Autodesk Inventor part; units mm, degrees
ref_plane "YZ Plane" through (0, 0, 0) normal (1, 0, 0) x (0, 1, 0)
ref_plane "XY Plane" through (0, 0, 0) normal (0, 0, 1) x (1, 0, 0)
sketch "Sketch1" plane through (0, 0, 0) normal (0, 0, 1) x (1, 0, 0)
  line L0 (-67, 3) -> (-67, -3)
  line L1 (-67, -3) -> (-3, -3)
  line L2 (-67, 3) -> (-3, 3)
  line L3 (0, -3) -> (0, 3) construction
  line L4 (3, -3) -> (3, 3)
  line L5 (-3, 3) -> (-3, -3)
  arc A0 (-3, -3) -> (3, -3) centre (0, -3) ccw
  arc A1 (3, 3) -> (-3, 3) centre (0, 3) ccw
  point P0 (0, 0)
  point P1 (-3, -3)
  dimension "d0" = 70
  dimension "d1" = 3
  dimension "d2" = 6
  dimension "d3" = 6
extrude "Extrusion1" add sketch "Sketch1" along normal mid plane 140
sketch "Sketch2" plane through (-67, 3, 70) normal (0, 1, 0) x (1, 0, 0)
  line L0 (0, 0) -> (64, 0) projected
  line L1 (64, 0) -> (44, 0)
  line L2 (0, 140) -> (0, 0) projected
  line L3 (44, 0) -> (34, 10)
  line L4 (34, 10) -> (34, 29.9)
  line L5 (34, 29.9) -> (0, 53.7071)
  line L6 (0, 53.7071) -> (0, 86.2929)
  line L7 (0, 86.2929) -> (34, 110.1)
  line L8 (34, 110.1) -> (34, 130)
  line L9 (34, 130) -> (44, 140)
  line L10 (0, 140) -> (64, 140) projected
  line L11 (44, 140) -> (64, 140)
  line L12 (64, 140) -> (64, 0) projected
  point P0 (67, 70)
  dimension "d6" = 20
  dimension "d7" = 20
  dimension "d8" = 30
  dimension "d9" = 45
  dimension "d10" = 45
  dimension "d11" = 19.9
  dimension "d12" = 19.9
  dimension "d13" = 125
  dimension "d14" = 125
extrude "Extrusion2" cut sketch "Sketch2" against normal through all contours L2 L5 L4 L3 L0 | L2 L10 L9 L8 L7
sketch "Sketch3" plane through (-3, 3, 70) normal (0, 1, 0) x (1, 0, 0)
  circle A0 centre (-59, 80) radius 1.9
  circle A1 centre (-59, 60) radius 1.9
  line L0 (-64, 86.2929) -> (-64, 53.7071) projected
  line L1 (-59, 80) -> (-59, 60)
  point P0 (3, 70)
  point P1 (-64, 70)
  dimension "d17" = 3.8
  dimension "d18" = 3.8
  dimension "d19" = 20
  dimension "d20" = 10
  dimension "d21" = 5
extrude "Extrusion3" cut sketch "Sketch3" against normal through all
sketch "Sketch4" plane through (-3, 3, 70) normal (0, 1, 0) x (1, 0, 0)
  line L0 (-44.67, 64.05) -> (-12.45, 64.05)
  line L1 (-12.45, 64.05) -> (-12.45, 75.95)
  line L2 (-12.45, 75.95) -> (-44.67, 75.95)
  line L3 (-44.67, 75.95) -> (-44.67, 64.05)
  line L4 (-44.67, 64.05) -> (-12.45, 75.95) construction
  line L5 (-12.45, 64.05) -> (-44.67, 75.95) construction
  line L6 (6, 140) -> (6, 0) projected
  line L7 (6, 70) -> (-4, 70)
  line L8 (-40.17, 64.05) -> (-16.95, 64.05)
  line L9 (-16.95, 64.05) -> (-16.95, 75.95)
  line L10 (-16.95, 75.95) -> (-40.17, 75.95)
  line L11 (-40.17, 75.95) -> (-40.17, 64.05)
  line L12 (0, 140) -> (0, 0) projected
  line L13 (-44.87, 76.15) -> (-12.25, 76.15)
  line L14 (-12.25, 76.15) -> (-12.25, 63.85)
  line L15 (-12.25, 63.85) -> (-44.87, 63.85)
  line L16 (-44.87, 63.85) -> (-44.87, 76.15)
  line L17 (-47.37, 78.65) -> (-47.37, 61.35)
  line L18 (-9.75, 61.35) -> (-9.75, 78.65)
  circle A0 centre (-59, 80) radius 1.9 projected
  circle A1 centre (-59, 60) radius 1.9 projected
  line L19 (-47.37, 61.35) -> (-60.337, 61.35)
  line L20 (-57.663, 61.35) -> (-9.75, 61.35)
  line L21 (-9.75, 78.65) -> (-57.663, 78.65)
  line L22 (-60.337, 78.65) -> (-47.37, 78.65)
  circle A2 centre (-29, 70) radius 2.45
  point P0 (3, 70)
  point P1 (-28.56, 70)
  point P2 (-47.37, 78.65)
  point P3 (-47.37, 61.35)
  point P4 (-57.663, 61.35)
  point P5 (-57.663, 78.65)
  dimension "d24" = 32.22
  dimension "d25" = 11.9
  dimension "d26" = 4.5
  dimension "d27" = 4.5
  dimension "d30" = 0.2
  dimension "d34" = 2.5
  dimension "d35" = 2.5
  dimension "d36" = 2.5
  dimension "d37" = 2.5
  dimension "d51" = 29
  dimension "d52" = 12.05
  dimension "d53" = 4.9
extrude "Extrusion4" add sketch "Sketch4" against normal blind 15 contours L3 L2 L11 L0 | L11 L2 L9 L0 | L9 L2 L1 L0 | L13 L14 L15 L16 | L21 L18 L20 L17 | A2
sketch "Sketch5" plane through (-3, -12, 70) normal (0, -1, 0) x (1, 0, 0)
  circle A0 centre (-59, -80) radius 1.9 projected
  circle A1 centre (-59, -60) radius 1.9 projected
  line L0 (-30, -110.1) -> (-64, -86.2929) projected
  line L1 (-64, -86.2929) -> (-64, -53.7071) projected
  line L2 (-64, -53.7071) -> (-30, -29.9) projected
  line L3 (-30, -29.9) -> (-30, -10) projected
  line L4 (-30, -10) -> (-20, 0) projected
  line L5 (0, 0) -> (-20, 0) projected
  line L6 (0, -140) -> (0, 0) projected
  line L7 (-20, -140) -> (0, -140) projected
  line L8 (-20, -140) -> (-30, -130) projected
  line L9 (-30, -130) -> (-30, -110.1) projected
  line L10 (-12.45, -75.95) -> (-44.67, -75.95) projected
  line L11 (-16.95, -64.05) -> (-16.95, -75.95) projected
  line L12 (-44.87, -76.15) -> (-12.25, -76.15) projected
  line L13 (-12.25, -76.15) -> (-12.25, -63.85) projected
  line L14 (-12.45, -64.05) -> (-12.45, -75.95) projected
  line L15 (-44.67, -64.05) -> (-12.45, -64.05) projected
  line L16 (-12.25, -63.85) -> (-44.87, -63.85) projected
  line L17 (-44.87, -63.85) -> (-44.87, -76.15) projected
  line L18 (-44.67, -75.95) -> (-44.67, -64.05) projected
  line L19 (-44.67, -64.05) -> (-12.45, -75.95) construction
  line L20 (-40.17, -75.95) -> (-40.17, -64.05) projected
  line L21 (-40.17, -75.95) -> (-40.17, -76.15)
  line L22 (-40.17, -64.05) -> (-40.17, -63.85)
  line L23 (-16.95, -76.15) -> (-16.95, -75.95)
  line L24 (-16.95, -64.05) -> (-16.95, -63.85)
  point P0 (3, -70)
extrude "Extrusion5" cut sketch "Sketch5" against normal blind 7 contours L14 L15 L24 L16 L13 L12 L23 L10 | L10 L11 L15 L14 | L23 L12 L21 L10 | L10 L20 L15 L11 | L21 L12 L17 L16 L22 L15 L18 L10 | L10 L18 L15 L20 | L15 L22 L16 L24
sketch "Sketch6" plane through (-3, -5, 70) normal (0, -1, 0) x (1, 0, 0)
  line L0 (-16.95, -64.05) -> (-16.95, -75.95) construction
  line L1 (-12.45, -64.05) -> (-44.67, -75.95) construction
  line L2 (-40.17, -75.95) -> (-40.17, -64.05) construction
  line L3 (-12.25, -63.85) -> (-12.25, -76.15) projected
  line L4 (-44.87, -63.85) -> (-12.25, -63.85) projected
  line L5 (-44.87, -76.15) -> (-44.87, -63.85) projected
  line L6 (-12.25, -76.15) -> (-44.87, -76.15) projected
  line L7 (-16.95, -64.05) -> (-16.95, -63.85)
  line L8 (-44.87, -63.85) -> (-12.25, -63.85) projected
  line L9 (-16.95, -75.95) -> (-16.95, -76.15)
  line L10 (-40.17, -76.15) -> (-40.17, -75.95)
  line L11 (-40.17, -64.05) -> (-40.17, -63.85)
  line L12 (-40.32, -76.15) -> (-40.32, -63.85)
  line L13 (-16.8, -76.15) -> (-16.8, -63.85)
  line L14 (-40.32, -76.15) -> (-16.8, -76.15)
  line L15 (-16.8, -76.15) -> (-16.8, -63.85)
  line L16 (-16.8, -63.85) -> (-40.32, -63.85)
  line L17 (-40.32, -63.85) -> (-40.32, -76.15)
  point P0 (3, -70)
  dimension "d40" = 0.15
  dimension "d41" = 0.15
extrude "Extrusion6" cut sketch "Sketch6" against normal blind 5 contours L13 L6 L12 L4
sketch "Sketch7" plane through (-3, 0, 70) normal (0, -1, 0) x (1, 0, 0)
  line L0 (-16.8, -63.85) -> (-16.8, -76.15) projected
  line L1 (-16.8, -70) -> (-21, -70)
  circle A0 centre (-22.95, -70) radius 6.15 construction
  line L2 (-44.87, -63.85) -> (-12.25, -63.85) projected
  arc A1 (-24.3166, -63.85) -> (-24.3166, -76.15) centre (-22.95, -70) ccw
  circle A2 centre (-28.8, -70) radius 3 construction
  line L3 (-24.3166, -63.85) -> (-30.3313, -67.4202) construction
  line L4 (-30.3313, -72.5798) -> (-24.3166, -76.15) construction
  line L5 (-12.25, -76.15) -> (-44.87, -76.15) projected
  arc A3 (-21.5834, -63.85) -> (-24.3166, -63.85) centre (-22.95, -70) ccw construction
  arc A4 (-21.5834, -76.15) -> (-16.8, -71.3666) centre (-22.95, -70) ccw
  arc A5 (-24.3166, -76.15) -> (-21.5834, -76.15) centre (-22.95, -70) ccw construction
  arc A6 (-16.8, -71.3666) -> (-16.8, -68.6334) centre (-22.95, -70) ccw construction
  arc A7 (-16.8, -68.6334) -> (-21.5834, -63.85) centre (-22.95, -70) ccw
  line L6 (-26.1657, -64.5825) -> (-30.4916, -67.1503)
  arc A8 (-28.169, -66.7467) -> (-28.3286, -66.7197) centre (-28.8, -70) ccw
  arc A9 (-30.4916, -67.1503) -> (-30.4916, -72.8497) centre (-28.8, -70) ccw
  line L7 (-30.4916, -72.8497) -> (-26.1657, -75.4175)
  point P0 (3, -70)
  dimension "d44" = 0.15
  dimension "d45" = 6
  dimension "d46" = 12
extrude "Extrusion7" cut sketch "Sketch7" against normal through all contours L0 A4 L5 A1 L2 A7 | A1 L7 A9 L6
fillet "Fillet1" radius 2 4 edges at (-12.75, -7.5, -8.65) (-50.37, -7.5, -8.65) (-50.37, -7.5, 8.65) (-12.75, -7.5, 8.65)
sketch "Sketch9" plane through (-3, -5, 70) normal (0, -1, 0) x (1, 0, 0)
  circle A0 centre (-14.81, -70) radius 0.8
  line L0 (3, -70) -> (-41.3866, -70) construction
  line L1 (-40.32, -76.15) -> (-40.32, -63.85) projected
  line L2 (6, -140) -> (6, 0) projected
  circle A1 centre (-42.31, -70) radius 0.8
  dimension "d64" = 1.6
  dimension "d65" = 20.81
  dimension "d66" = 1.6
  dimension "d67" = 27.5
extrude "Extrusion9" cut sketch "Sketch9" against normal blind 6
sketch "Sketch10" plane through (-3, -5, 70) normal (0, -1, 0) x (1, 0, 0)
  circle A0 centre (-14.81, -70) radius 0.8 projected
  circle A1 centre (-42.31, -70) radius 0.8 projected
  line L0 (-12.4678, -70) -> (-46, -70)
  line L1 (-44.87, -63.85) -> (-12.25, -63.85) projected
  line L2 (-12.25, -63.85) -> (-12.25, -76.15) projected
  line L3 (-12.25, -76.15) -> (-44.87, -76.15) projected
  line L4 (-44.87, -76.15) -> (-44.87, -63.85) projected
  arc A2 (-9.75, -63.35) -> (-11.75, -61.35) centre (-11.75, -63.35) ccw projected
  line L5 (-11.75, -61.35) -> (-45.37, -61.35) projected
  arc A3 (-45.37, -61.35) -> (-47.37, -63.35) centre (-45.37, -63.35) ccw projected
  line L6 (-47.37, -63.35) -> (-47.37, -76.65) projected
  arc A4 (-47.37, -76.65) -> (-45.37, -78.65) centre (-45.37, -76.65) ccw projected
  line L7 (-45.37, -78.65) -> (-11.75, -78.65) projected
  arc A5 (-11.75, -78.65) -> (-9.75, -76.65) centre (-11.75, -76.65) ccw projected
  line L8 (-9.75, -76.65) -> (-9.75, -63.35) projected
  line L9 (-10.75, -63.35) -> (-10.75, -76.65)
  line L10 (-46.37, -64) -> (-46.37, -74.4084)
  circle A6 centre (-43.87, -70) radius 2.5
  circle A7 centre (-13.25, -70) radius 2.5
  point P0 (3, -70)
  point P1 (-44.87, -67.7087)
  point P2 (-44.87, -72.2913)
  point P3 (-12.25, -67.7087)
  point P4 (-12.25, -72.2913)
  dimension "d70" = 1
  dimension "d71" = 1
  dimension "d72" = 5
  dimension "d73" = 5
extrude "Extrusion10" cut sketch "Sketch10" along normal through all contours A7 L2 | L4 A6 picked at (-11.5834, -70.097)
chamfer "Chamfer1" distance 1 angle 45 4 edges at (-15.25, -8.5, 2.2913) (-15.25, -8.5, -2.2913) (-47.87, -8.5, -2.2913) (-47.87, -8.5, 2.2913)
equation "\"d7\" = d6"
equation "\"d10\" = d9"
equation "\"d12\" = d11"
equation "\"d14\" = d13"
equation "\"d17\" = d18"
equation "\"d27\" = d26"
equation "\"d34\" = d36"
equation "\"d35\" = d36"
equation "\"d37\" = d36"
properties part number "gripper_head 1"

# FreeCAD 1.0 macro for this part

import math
import FreeCAD as App
import Part
import Sketcher
Q = App.Units.Quantity


def edges_at(feature, points):
    """Names of the edges that pass closest to the given points."""
    edges = feature.Shape.Edges
    near = lambda p: min(range(len(edges)), key=lambda i: edges[i].distToShape(Part.Vertex(*p))[0])
    return sorted({f"Edge{near(p) + 1}" for p in points})

doc = App.newDocument("Part")
body = doc.addObject("PartDesign::Body", "Body")

# Sketch on XY plane
sketch1 = body.newObject("Sketcher::SketchObject", "Sketch")
sketch1.AttachmentSupport = (doc.getObject("XY_Plane"), [""])
sketch1.MapMode = "FlatFace"
sketch1.addGeometry([
    Part.LineSegment(App.Vector(-3, 3, 0), App.Vector(-67, 3, 0)),  # 0
    Part.LineSegment(App.Vector(-67, 3, 0), App.Vector(-67, -3, 0)),  # 1
    Part.LineSegment(App.Vector(-67, -3, 0), App.Vector(-3, -3, 0)),  # 2
    Part.ArcOfCircle(Part.Circle(App.Vector(0, -3, 0), App.Vector(0, 0, 1), 3), math.radians(180), math.radians(360)),  # 3
    Part.LineSegment(App.Vector(3, -3, 0), App.Vector(3, 3, 0)),  # 4
    Part.ArcOfCircle(Part.Circle(App.Vector(0, 3, 0), App.Vector(0, 0, 1), 3), math.radians(0), math.radians(180)),  # 5
], False)
sketch1.addConstraint([
    Sketcher.Constraint("Coincident", 0, 2, 1, 1),
    Sketcher.Constraint("Coincident", 1, 2, 2, 1),
    Sketcher.Constraint("Coincident", 2, 2, 3, 1),
    Sketcher.Constraint("Tangent", 3, 2, 4, 1),
    Sketcher.Constraint("Tangent", 4, 2, 5, 1),
    Sketcher.Constraint("Coincident", 5, 2, 0, 1),
    Sketcher.Constraint("Horizontal", 0),
    Sketcher.Constraint("Vertical", 1),
    Sketcher.Constraint("Horizontal", 2),
    Sketcher.Constraint("Vertical", 4),
    Sketcher.Constraint("Equal", 3, 5),
    Sketcher.Constraint("Symmetric", 3, 3, 5, 3, -1, 1),
    Sketcher.Constraint("Horizontal", 5, 3, 0, 2),
    Sketcher.Constraint("Horizontal", 3, 3, 1, 2),
    Sketcher.Constraint("Radius", 3, 3.0),
    Sketcher.Constraint("DistanceY", 1, 2, 1, 1, 6.0),
    Sketcher.Constraint("DistanceX", 1, 2, 3, 2, 70.0),
])
pad1 = body.newObject("PartDesign::Pad", "Pad")
pad1.Profile = sketch1
pad1.Length = 140
pad1.Midplane = True

# Sketch on XZ plane
sketch2 = body.newObject("Sketcher::SketchObject", "Sketch001")
sketch2.AttachmentSupport = (doc.getObject("XZ_Plane"), [""])
sketch2.MapMode = "FlatFace"
sketch2.AttachmentOffset = App.Placement(App.Vector(0, 0, -3), App.Rotation())
sketch2.addGeometry([
    Part.LineSegment(App.Vector(-67, 16, 0), App.Vector(-67, 70, 0)),  # 0
    Part.LineSegment(App.Vector(-67, 70, 0), App.Vector(-23, 70, 0)),  # 1
    Part.LineSegment(App.Vector(-23, 70, 0), App.Vector(-33, 60, 0)),  # 2
    Part.LineSegment(App.Vector(-33, 60, 0), App.Vector(-33, 40, 0)),  # 3
    Part.LineSegment(App.Vector(-33, 40, 0), App.Vector(-67, 16, 0)),  # 4
    Part.LineSegment(App.Vector(-67, -70, 0), App.Vector(-67, -16, 0)),  # 5
    Part.LineSegment(App.Vector(-67, -16, 0), App.Vector(-33, -40, 0)),  # 6
    Part.LineSegment(App.Vector(-33, -40, 0), App.Vector(-33, -60, 0)),  # 7
    Part.LineSegment(App.Vector(-33, -60, 0), App.Vector(-23, -70, 0)),  # 8
    Part.LineSegment(App.Vector(-23, -70, 0), App.Vector(-67, -70, 0)),  # 9
], False)
sketch2.addConstraint([
    Sketcher.Constraint("Coincident", 0, 2, 1, 1),
    Sketcher.Constraint("Coincident", 1, 2, 2, 1),
    Sketcher.Constraint("Coincident", 2, 2, 3, 1),
    Sketcher.Constraint("Coincident", 3, 2, 4, 1),
    Sketcher.Constraint("Coincident", 4, 2, 0, 1),
    Sketcher.Constraint("Coincident", 5, 2, 6, 1),
    Sketcher.Constraint("Coincident", 6, 2, 7, 1),
    Sketcher.Constraint("Coincident", 7, 2, 8, 1),
    Sketcher.Constraint("Coincident", 8, 2, 9, 1),
    Sketcher.Constraint("Coincident", 9, 2, 5, 1),
    Sketcher.Constraint("Vertical", 0),
    Sketcher.Constraint("Horizontal", 1),
    Sketcher.Constraint("Vertical", 3),
    Sketcher.Constraint("Vertical", 5),
    Sketcher.Constraint("Vertical", 7),
    Sketcher.Constraint("Horizontal", 9),
    Sketcher.Constraint("Symmetric", 4, 2, 5, 2, -1),
    Sketcher.Constraint("Symmetric", 3, 2, 6, 2, -1),
    Sketcher.Constraint("Symmetric", 1, 2, 8, 2, -1),
    Sketcher.Constraint("Perpendicular", 2, 8),
    Sketcher.Constraint("Equal", 3, 7),
    Sketcher.Constraint("DistanceY", 3, 2, 3, 1, 19.9),
    Sketcher.Constraint("DistanceX", 1, 1, 1, 2, 44.0),
    Sketcher.Constraint("Angle", 4, Q("-145 deg")),
    Sketcher.Constraint("DistanceX", 0, 2, -1, 1, 67.0),
    Sketcher.Constraint("DistanceY", -1, 1, 0, 2, 70.0),
    Sketcher.Constraint("DistanceX", 2, 2, -1, 1, 33.0),
])
pocket1 = body.newObject("PartDesign::Pocket", "Pocket")
pocket1.Profile = sketch2
pocket1.Type = "ThroughAll"
pocket1.Reversed = True

# Sketch on XZ plane
sketch3 = body.newObject("Sketcher::SketchObject", "Sketch002")
sketch3.AttachmentSupport = (doc.getObject("XZ_Plane"), [""])
sketch3.MapMode = "FlatFace"
sketch3.AttachmentOffset = App.Placement(App.Vector(0, 0, -3), App.Rotation())
sketch3.addGeometry([
    Part.Circle(App.Vector(-62, -10, 0), App.Vector(0, 0, 1), 1.9),
    Part.Circle(App.Vector(-62, 10, 0), App.Vector(0, 0, 1), 1.9),
], False)
sketch3.addConstraint([
    Sketcher.Constraint("Equal", 0, 1),
    Sketcher.Constraint("Symmetric", 0, 3, 1, 3, -1),
    Sketcher.Constraint("Diameter", 0, 3.8),
    Sketcher.Constraint("DistanceY", 0, 3, -1, 1, 10.0),
    Sketcher.Constraint("DistanceX", 0, 3, -1, 1, 62.0),
])
pocket2 = body.newObject("PartDesign::Pocket", "Pocket001")
pocket2.Profile = sketch3
pocket2.Type = "ThroughAll"
pocket2.Reversed = True

# Sketch on XZ plane
sketch4 = body.newObject("Sketcher::SketchObject", "Sketch003")
sketch4.AttachmentSupport = (doc.getObject("XZ_Plane"), [""])
sketch4.MapMode = "FlatFace"
sketch4.AttachmentOffset = App.Placement(App.Vector(0, 0, -3), App.Rotation())
sketch4.addGeometry([
    Part.LineSegment(App.Vector(-13, -9, 0), App.Vector(-50, -9, 0)),
    Part.LineSegment(App.Vector(-50, -9, 0), App.Vector(-50, 9, 0)),
    Part.LineSegment(App.Vector(-50, 9, 0), App.Vector(-13, 9, 0)),
    Part.LineSegment(App.Vector(-13, 9, 0), App.Vector(-13, -9, 0)),
], False)
sketch4.addConstraint([
    Sketcher.Constraint("Coincident", 0, 2, 1, 1),
    Sketcher.Constraint("Coincident", 1, 2, 2, 1),
    Sketcher.Constraint("Coincident", 2, 2, 3, 1),
    Sketcher.Constraint("Coincident", 3, 2, 0, 1),
    Sketcher.Constraint("Horizontal", 0),
    Sketcher.Constraint("Vertical", 1),
    Sketcher.Constraint("Horizontal", 2),
    Sketcher.Constraint("Vertical", 3),
    Sketcher.Constraint("DistanceY", 1, 1, 1, 2, 17.3),
    Sketcher.Constraint("DistanceX", 0, 2, 0, 1, 37.62),
    Sketcher.Constraint("DistanceX", 0, 2, -1, 1, 50.37),
    Sketcher.Constraint("DistanceY", 0, 2, -1, 1, 8.65),
])
pad2 = body.newObject("PartDesign::Pad", "Pad001")
pad2.Profile = sketch4
pad2.Length = 15

# Sketch on XZ plane
sketch5 = body.newObject("Sketcher::SketchObject", "Sketch004")
sketch5.AttachmentSupport = (doc.getObject("XZ_Plane"), [""])
sketch5.MapMode = "FlatFace"
sketch5.AttachmentOffset = App.Placement(App.Vector(0, 0, 12), App.Rotation())
sketch5.addGeometry([
    Part.LineSegment(App.Vector(-15, 6, 0), App.Vector(-48, 6, 0)),
    Part.LineSegment(App.Vector(-48, 6, 0), App.Vector(-48, -6, 0)),
    Part.LineSegment(App.Vector(-48, -6, 0), App.Vector(-15, -6, 0)),
    Part.LineSegment(App.Vector(-15, -6, 0), App.Vector(-15, 6, 0)),
], False)
sketch5.addConstraint([
    Sketcher.Constraint("Coincident", 0, 2, 1, 1),
    Sketcher.Constraint("Coincident", 1, 2, 2, 1),
    Sketcher.Constraint("Coincident", 2, 2, 3, 1),
    Sketcher.Constraint("Coincident", 3, 2, 0, 1),
    Sketcher.Constraint("Horizontal", 0),
    Sketcher.Constraint("Vertical", 1),
    Sketcher.Constraint("Horizontal", 2),
    Sketcher.Constraint("Vertical", 3),
    Sketcher.Constraint("DistanceY", 1, 2, 1, 1, 12.3),
    Sketcher.Constraint("DistanceX", 0, 2, 0, 1, 32.62),
    Sketcher.Constraint("DistanceX", 0, 2, -1, 1, 47.87),
    Sketcher.Constraint("DistanceY", -1, 1, 0, 2, 6.15),
])
pocket3 = body.newObject("PartDesign::Pocket", "Pocket002")
pocket3.Profile = sketch5
pocket3.Length = 7

# Sketch on XZ plane
sketch6 = body.newObject("Sketcher::SketchObject", "Sketch005")
sketch6.AttachmentSupport = (doc.getObject("XZ_Plane"), [""])
sketch6.MapMode = "FlatFace"
sketch6.AttachmentOffset = App.Placement(App.Vector(0, 0, 5), App.Rotation())
sketch6.addGeometry([
    Part.LineSegment(App.Vector(-20, -6, 0), App.Vector(-20, 6, 0)),
    Part.LineSegment(App.Vector(-20, 6, 0), App.Vector(-43, 6, 0)),
    Part.LineSegment(App.Vector(-43, 6, 0), App.Vector(-43, -6, 0)),
    Part.LineSegment(App.Vector(-43, -6, 0), App.Vector(-20, -6, 0)),
], False)
sketch6.addConstraint([
    Sketcher.Constraint("Coincident", 0, 2, 1, 1),
    Sketcher.Constraint("Coincident", 1, 2, 2, 1),
    Sketcher.Constraint("Coincident", 2, 2, 3, 1),
    Sketcher.Constraint("Coincident", 3, 2, 0, 1),
    Sketcher.Constraint("Vertical", 0),
    Sketcher.Constraint("Horizontal", 1),
    Sketcher.Constraint("Vertical", 2),
    Sketcher.Constraint("Horizontal", 3),
    Sketcher.Constraint("DistanceY", 0, 1, 0, 2, 12.3),
    Sketcher.Constraint("DistanceX", 1, 2, 1, 1, 23.52),
    Sketcher.Constraint("DistanceX", 0, 2, -1, 1, 19.8),
    Sketcher.Constraint("DistanceY", -1, 1, 0, 2, 6.15),
])
pocket4 = body.newObject("PartDesign::Pocket", "Pocket003")
pocket4.Profile = sketch6
pocket4.Length = 5

# Sketch on XZ plane
sketch7 = body.newObject("Sketcher::SketchObject", "Sketch006")
sketch7.AttachmentSupport = (doc.getObject("XZ_Plane"), [""])
sketch7.MapMode = "FlatFace"
sketch7.addGeometry([
    Part.ArcOfCircle(Part.Circle(App.Vector(-25.9, 0, 0), App.Vector(0, 0, 1), 6.3), math.radians(13), math.radians(77)),  # 0
    Part.LineSegment(App.Vector(-24.6, 6.2, 0), App.Vector(-27.3, 6.2, 0)),  # 1
    Part.ArcOfCircle(Part.Circle(App.Vector(-25.9, 0, 0), App.Vector(0, 0, 1), 6.3), math.radians(102.53), math.radians(120.69)),  # 2
    Part.LineSegment(App.Vector(-29.2, 5.4, 0), App.Vector(-33.5, 2.8, 0)),  # 3
    Part.ArcOfCircle(Part.Circle(App.Vector(-31.8, 0, 0), App.Vector(0, 0, 1), 3.3), math.radians(121), math.radians(239)),  # 4
    Part.LineSegment(App.Vector(-33.5, -2.8, 0), App.Vector(-29.2, -5.4, 0)),  # 5
    Part.ArcOfCircle(Part.Circle(App.Vector(-25.9, 0, 0), App.Vector(0, 0, 1), 6.3), math.radians(-120.69), math.radians(-102.53)),  # 6
    Part.LineSegment(App.Vector(-27.3, -6.2, 0), App.Vector(-24.6, -6.2, 0)),  # 7
    Part.ArcOfCircle(Part.Circle(App.Vector(-25.9, 0, 0), App.Vector(0, 0, 1), 6.3), math.radians(-77), math.radians(-13)),  # 8
    Part.LineSegment(App.Vector(-19.8, -1.4, 0), App.Vector(-19.8, 1.4, 0)),  # 9
], False)
sketch7.addConstraint([
    Sketcher.Constraint("Coincident", 0, 2, 1, 1),
    Sketcher.Constraint("Coincident", 1, 2, 2, 1),
    Sketcher.Constraint("Tangent", 2, 2, 3, 1),
    Sketcher.Constraint("Tangent", 3, 2, 4, 1),
    Sketcher.Constraint("Tangent", 4, 2, 5, 1),
    Sketcher.Constraint("Tangent", 5, 2, 6, 1),
    Sketcher.Constraint("Coincident", 6, 2, 7, 1),
    Sketcher.Constraint("Coincident", 7, 2, 8, 1),
    Sketcher.Constraint("Coincident", 8, 2, 9, 1),
    Sketcher.Constraint("Coincident", 9, 2, 0, 1),
    Sketcher.Constraint("Horizontal", 1),
    Sketcher.Constraint("Horizontal", 7),
    Sketcher.Constraint("Vertical", 9),
    Sketcher.Constraint("Coincident", 2, 3, 0, 3),
    Sketcher.Constraint("Coincident", 6, 3, 0, 3),
    Sketcher.Constraint("Coincident", 8, 3, 0, 3),
    Sketcher.Constraint("Equal", 0, 2),
    Sketcher.Constraint("Equal", 2, 6),
    Sketcher.Constraint("Equal", 6, 8),
    Sketcher.Constraint("Symmetric", 3, 2, 4, 2, -1),
    Sketcher.Constraint("Vertical", 1, 2, 6, 2),
    Sketcher.Constraint("Equal", 7, 9),
    Sketcher.Constraint("Radius", 0, 6.3),
    Sketcher.Constraint("Radius", 4, 3.314),
    Sketcher.Constraint("DistanceX", 4, 3, -1, 1, 31.8),
    Sketcher.Constraint("DistanceX", 8, 2, -1, 1, 19.8),
    Sketcher.Constraint("DistanceX", 0, 3, -1, 1, 25.95),
])
pocket5 = body.newObject("PartDesign::Pocket", "Pocket004")
pocket5.Profile = sketch7
pocket5.Type = "ThroughAll"
doc.recompute()

fillet = body.newObject("PartDesign::Fillet", "Fillet")
fillet.Base = (pocket5, edges_at(pocket5, [
    (-12.75, -7.5, -8.65),
    (-50.37, -7.5, -8.65),
    (-50.37, -7.5, 8.65),
    (-12.75, -7.5, 8.65),
]))
fillet.Radius = 2

# Sketch on XZ plane
sketch8 = body.newObject("Sketcher::SketchObject", "Sketch007")
sketch8.AttachmentSupport = (doc.getObject("XZ_Plane"), [""])
sketch8.MapMode = "FlatFace"
sketch8.AttachmentOffset = App.Placement(App.Vector(0, 0, 5), App.Rotation())
sketch8.addGeometry([
    Part.Circle(App.Vector(-17.8, 0, 0), App.Vector(0, 0, 1), 0.8),
    Part.Circle(App.Vector(-45.3, 0, 0), App.Vector(0, 0, 1), 0.8),
], False)
sketch8.addConstraint([
    Sketcher.Constraint("Equal", 0, 1),
    Sketcher.Constraint("PointOnObject", 0, 3, -1),
    Sketcher.Constraint("PointOnObject", 1, 3, -1),
    Sketcher.Constraint("Diameter", 0, 1.6),
    Sketcher.Constraint("DistanceX", 1, 3, 0, 3, 27.5),
    Sketcher.Constraint("DistanceX", 0, 3, -1, 1, 17.81),
])
pocket6 = body.newObject("PartDesign::Pocket", "Pocket005")
pocket6.Profile = sketch8
pocket6.Length = 6

# Sketch on XZ plane
sketch9 = body.newObject("Sketcher::SketchObject", "Sketch008")
sketch9.AttachmentSupport = (doc.getObject("XZ_Plane"), [""])
sketch9.MapMode = "FlatFace"
sketch9.AttachmentOffset = App.Placement(App.Vector(0, 0, 5), App.Rotation())
sketch9.addGeometry([
    Part.ArcOfCircle(Part.Circle(App.Vector(-16.2, 0, 0), App.Vector(0, 0, 1), 2.5), math.radians(-66), math.radians(66)),
    Part.LineSegment(App.Vector(-15.2, 2.3, 0), App.Vector(-15.2, -2.3, 0)),
    Part.LineSegment(App.Vector(-47.9, -2.3, 0), App.Vector(-47.9, 2.3, 0)),
    Part.ArcOfCircle(Part.Circle(App.Vector(-46.9, 0, 0), App.Vector(0, 0, 1), 2.5), math.radians(114), math.radians(246)),
], False)
sketch9.addConstraint([
    Sketcher.Constraint("Coincident", 0, 1, 1, 2),
    Sketcher.Constraint("Coincident", 1, 1, 0, 2),
    Sketcher.Constraint("Coincident", 2, 1, 3, 2),
    Sketcher.Constraint("Coincident", 3, 1, 2, 2),
    Sketcher.Constraint("Vertical", 1),
    Sketcher.Constraint("Vertical", 2),
    Sketcher.Constraint("Equal", 0, 3),
    Sketcher.Constraint("PointOnObject", 0, 3, -1),
    Sketcher.Constraint("PointOnObject", 3, 3, -1),
    Sketcher.Constraint("Horizontal", 0, 1, 2, 1),
    Sketcher.Constraint("Radius", 0, 2.5),
    Sketcher.Constraint("DistanceX", 0, 3, 0, 1, 1.0),
    Sketcher.Constraint("DistanceX", 0, 3, -1, 1, 16.25),
    Sketcher.Constraint("DistanceX", 3, 3, -1, 1, 46.87),
])
pocket7 = body.newObject("PartDesign::Pocket", "Pocket006")
pocket7.Profile = sketch9
pocket7.Type = "ThroughAll"
pocket7.Reversed = True
doc.recompute()

chamfer = body.newObject("PartDesign::Chamfer", "Chamfer")
chamfer.Base = (pocket7, edges_at(pocket7, [
    (-15.25, -8.5, 2.291),
    (-15.25, -8.5, -2.291),
    (-47.87, -8.5, -2.291),
    (-47.87, -8.5, 2.291),
]))
chamfer.Size = 1

doc.recompute()
